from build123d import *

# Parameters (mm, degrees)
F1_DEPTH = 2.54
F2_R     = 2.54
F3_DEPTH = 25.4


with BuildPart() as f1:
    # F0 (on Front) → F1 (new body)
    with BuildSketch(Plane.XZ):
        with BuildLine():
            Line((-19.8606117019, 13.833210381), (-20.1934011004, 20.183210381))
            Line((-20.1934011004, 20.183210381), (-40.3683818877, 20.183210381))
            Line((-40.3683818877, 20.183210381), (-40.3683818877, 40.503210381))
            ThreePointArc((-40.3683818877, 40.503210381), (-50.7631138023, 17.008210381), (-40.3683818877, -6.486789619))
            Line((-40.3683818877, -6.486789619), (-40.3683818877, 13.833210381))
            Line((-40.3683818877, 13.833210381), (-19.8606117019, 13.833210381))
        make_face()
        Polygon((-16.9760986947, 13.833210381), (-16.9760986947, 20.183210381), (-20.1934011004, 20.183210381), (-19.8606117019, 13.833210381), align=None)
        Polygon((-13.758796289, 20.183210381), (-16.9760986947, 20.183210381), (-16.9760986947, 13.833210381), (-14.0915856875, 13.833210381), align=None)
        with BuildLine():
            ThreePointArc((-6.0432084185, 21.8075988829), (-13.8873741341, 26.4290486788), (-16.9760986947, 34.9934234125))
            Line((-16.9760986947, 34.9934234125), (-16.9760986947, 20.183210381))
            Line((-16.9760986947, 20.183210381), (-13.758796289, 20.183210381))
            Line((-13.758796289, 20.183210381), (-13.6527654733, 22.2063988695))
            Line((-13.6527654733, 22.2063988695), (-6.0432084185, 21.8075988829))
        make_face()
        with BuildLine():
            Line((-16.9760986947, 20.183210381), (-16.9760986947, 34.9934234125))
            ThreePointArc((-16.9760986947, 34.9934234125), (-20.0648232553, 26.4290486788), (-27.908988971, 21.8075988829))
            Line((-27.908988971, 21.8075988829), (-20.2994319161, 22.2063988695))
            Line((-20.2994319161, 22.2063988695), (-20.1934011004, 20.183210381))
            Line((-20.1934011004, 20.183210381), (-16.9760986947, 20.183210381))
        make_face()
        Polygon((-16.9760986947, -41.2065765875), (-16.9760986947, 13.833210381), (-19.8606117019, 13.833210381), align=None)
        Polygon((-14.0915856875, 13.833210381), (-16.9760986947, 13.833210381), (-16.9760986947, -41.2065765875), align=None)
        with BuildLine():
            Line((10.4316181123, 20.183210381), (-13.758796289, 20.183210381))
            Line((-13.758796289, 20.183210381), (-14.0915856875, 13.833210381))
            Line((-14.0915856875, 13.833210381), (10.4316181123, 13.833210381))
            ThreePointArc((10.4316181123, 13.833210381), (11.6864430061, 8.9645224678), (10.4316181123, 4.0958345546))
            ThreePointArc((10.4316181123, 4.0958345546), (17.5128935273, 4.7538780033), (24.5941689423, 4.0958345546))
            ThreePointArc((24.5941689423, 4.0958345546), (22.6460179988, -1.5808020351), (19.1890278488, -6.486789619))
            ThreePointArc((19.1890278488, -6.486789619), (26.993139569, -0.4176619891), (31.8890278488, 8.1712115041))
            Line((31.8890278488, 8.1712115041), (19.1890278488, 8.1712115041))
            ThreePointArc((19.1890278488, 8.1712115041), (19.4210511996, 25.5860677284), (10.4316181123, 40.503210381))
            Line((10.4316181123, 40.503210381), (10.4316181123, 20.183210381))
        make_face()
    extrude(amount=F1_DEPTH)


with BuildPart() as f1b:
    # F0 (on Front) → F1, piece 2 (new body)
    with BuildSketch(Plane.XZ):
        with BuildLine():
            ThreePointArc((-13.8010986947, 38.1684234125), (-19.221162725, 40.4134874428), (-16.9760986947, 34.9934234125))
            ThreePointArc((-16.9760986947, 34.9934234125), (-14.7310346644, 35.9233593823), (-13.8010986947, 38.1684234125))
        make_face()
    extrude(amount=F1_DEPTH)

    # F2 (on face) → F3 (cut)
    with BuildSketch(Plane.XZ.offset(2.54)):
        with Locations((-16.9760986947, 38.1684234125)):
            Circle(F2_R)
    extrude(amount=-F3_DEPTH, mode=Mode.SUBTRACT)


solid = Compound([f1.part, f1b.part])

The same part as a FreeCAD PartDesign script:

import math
import FreeCAD as App
import Part
import Sketcher
Q = App.Units.Quantity

doc = App.newDocument("Part")
body = doc.addObject("PartDesign::Body", "Body")

sketch1 = body.newObject("Sketcher::SketchObject", "Sketch")
sketch1.AttachmentSupport = (doc.getObject("XZ_Plane"), [""])
sketch1.MapMode = "FlatFace"
sketch1.addGeometry([
    Part.LineSegment(App.Vector(-40.4, 20.2, 0), App.Vector(-40.4, 40.5, 0)),
    Part.ArcOfCircle(Part.Circle(App.Vector(-19, 17, 0), App.Vector(0, 0, 1), 31.8), math.radians(132), math.radians(228)),
    Part.LineSegment(App.Vector(-40.4, -6.5, 0), App.Vector(-40.4, 13.8, 0)),
    Part.LineSegment(App.Vector(-40.4, 13.8, 0), App.Vector(-19.9, 13.8, 0)),
    Part.LineSegment(App.Vector(-19.9, 13.8, 0), App.Vector(-17, -41.2, 0)),
    Part.LineSegment(App.Vector(-17, -41.2, 0), App.Vector(-14.1, 13.8, 0)),
    Part.LineSegment(App.Vector(-14.1, 13.8, 0), App.Vector(10.4, 13.8, 0)),
    Part.ArcOfCircle(Part.Circle(App.Vector(1.6, 9, 0), App.Vector(0, 0, 1), 10.1), math.radians(-29), math.radians(29)),
    Part.ArcOfCircle(Part.Circle(App.Vector(17.5, -33.7, 0), App.Vector(0, 0, 1), 38.4), math.radians(79), math.radians(101)),
    Part.ArcOfCircle(Part.Circle(App.Vector(3.7, 8.1, 0), App.Vector(0, 0, 1), 21.3), math.radians(-43), math.radians(-11)),
    Part.ArcOfCircle(Part.Circle(App.Vector(7.8, 16.2, 0), App.Vector(0, 0, 1), 25.4), math.radians(-63), math.radians(-18)),
    Part.LineSegment(App.Vector(31.9, 8.2, 0), App.Vector(19.2, 8.2, 0)),
    Part.ArcOfCircle(Part.Circle(App.Vector(-11.2, 17.3, 0), App.Vector(0, 0, 1), 31.8), math.radians(-17), math.radians(47)),
    Part.LineSegment(App.Vector(10.4, 40.5, 0), App.Vector(10.4, 20.2, 0)),
    Part.LineSegment(App.Vector(10.4, 20.2, 0), App.Vector(-13.8, 20.2, 0)),
    Part.LineSegment(App.Vector(-13.8, 20.2, 0), App.Vector(-13.7, 22.2, 0)),
    Part.LineSegment(App.Vector(-13.7, 22.2, 0), App.Vector(-6, 21.8, 0)),
    Part.ArcOfCircle(Part.Circle(App.Vector(-3.6, 35, 0), App.Vector(0, 0, 1), 13.4), math.radians(180), math.radians(259)),
    Part.ArcOfCircle(Part.Circle(App.Vector(-30.4, 35, 0), App.Vector(0, 0, 1), 13.4), math.radians(-79), math.radians(0)),
    Part.LineSegment(App.Vector(-27.9, 21.8, 0), App.Vector(-20.3, 22.2, 0)),
    Part.LineSegment(App.Vector(-20.3, 22.2, 0), App.Vector(-20.2, 20.2, 0)),
    Part.LineSegment(App.Vector(-20.2, 20.2, 0), App.Vector(-40.4, 20.2, 0)),
], False)
sketch1.addConstraint([
    Sketcher.Constraint("Coincident", 0, 2, 1, 1),
    Sketcher.Constraint("Coincident", 1, 2, 2, 1),
    Sketcher.Constraint("Coincident", 2, 2, 3, 1),
    Sketcher.Constraint("Coincident", 3, 2, 4, 1),
    Sketcher.Constraint("Coincident", 4, 2, 5, 1),
    Sketcher.Constraint("Coincident", 5, 2, 6, 1),
    Sketcher.Constraint("Coincident", 6, 2, 7, 2),
    Sketcher.Constraint("Coincident", 7, 1, 8, 2),
    Sketcher.Constraint("Coincident", 8, 1, 9, 2),
    Sketcher.Constraint("Coincident", 9, 1, 10, 1),
    Sketcher.Constraint("Coincident", 10, 2, 11, 1),
    Sketcher.Constraint("Coincident", 11, 2, 12, 1),
    Sketcher.Constraint("Coincident", 12, 2, 13, 1),
    Sketcher.Constraint("Coincident", 13, 2, 14, 1),
    Sketcher.Constraint("Coincident", 14, 2, 15, 1),
    Sketcher.Constraint("Coincident", 15, 2, 16, 1),
    Sketcher.Constraint("Coincident", 16, 2, 17, 2),
    Sketcher.Constraint("Tangent", 17, 1, 18, 2),
    Sketcher.Constraint("Coincident", 18, 1, 19, 1),
    Sketcher.Constraint("Coincident", 19, 2, 20, 1),
    Sketcher.Constraint("Coincident", 20, 2, 21, 1),
    Sketcher.Constraint("Coincident", 21, 2, 0, 1),
    Sketcher.Constraint("Vertical", 0),
    Sketcher.Constraint("Vertical", 2),
    Sketcher.Constraint("Horizontal", 3),
    Sketcher.Constraint("Horizontal", 6),
    Sketcher.Constraint("Horizontal", 11),
    Sketcher.Constraint("Vertical", 13),
    Sketcher.Constraint("Horizontal", 14),
    Sketcher.Constraint("Horizontal", 21),
    Sketcher.Constraint("Equal", 1, 12),
    Sketcher.Constraint("Equal", 17, 18),
    Sketcher.Constraint("Parallel", 5, 15),
    Sketcher.Constraint("Perpendicular", 15, 16),
    Sketcher.Constraint("Perpendicular", 4, 19),
    Sketcher.Constraint("Perpendicular", 19, 20),
    Sketcher.Constraint("Horizontal", 17, 3, 18, 3),
    Sketcher.Constraint("Horizontal", 3, 2, 5, 2),
    Sketcher.Constraint("Horizontal", 7, 1, 8, 1),
    Sketcher.Constraint("Horizontal", 1, 2, 9, 1),
    Sketcher.Constraint("Horizontal", 0, 2, 12, 2),
    Sketcher.Constraint("Horizontal", 16, 2, 18, 1),
    Sketcher.Constraint("Horizontal", 15, 2, 19, 2),
    Sketcher.Constraint("Horizontal", 14, 2, 20, 2),
    Sketcher.Constraint("Vertical", 0, 2, 1, 2),
    Sketcher.Constraint("Vertical", 6, 2, 7, 1),
    Sketcher.Constraint("Vertical", 9, 1, 11, 2),
    Sketcher.Constraint("Vertical", 7, 1, 12, 2),
    Sketcher.Constraint("Vertical", 4, 2, 17, 1),
    Sketcher.Constraint("Equal", 0, 2),
    Sketcher.Constraint("Equal", 4, 5),
    Sketcher.Constraint("Radius", 10, Q("1 in")),
    Sketcher.Constraint("Radius", 1, Q("1.25 in")),
    Sketcher.Constraint("DistanceX", 11, 2, 11, 1, Q("0.5 in")),
    Sketcher.Constraint("DistanceY", 0, 1, 0, 2, Q("0.8 in")),
    Sketcher.Constraint("Angle", 4, Q("-87 deg")),
    Sketcher.Constraint("Radius", 8, Q("1.513 in")),
    Sketcher.Constraint("Radius", 9, Q("0.837 in")),
    Sketcher.Constraint("Distance", 16, Q("0.3 in")),
    Sketcher.Constraint("DistanceY", 2, 2, 0, 2, Q("1.05 in")),
    Sketcher.Constraint("Radius", 7, Q("10.072604 mm")),
    Sketcher.Constraint("Radius", 17, Q("13.417955 mm")),
    Sketcher.Constraint("DistanceX", 9, 3, 8, 1, Q("0.8220999 in")),
    Sketcher.Constraint("DistanceX", 3, 1, 3, 2, Q("20.50777 mm")),
    Sketcher.Constraint("DistanceX", 21, 2, 21, 1, Q("20.174981 mm")),
    Sketcher.Constraint("DistanceX", 4, 2, -1, 1, Q("16.976099 mm")),
    Sketcher.Constraint("DistanceY", -1, 1, 15, 2, Q("22.206399 mm")),
    Sketcher.Constraint("DistanceX", 20, 2, -1, 1, Q("20.193401 mm")),
    Sketcher.Constraint("DistanceY", 7, 3, 17, 3, Q("26.028901 mm")),
    Sketcher.Constraint("DistanceY", 4, 2, 7, 3, Q("50.171099 mm")),
    Sketcher.Constraint("DistanceY", 9, 1, 10, 2, Q("14.658001 mm")),
    Sketcher.Constraint("DistanceX", 6, 1, 6, 2, Q("24.523204 mm")),
    Sketcher.Constraint("DistanceY", 8, 3, -1, 1, Q("33.676322 mm")),
])
pad1 = body.newObject("PartDesign::Pad", "Pad")
pad1.Profile = sketch1
pad1.Length = Q("0.1 in")
body2 = doc.addObject("PartDesign::Body", "Body001")

sketch2 = body2.newObject("Sketcher::SketchObject", "Sketch001")
sketch2.AttachmentSupport = (doc.getObject("XZ_Plane001"), [""])
sketch2.MapMode = "FlatFace"
sketch2.addGeometry([
    Part.ArcOfCircle(Part.Circle(App.Vector(-17, 38.2, 0), App.Vector(0, 0, 1), 3.2), math.radians(0), math.radians(270)),
    Part.ArcOfCircle(Part.Circle(App.Vector(-17, 38.2, 0), App.Vector(0, 0, 1), 3.2), math.radians(-90), math.radians(0)),
], False)
sketch2.addConstraint([
    Sketcher.Constraint("Tangent", 0, 1, 1, 2),
    Sketcher.Constraint("Coincident", 1, 1, 0, 2),
    Sketcher.Constraint("Horizontal", 1, 3, 0, 1),
    Sketcher.Constraint("Vertical", 0, 3, 1, 1),
    Sketcher.Constraint("Radius", 0, Q("0.125 in")),
    Sketcher.Constraint("DistanceX", 0, 3, -1, 1, Q("16.976099 mm")),
    Sketcher.Constraint("DistanceY", -1, 1, 0, 3, Q("38.168423 mm")),
])
pad2 = body2.newObject("PartDesign::Pad", "Pad001")
pad2.Profile = sketch2
pad2.Length = Q("0.1 in")

sketch3 = body2.newObject("Sketcher::SketchObject", "Sketch002")
sketch3.AttachmentSupport = (doc.getObject("XZ_Plane001"), [""])
sketch3.MapMode = "FlatFace"
sketch3.AttachmentOffset = App.Placement(App.Vector(0, 0, 0.1 * 25.4), App.Rotation())
sketch3.addGeometry(Part.Circle(App.Vector(-17, 38.2, 0), App.Vector(0, 0, 1), 2.5), False)
sketch3.addConstraint([
    Sketcher.Constraint("Diameter", 0, Q("0.2 in")),
    Sketcher.Constraint("DistanceX", 0, 3, -1, 1, Q("16.976099 mm")),
    Sketcher.Constraint("DistanceY", -1, 1, 0, 3, Q("38.168423 mm")),
])
pocket1 = body2.newObject("PartDesign::Pocket", "Pocket")
pocket1.Profile = sketch3
pocket1.Length = Q("1 in")

doc.recompute()
